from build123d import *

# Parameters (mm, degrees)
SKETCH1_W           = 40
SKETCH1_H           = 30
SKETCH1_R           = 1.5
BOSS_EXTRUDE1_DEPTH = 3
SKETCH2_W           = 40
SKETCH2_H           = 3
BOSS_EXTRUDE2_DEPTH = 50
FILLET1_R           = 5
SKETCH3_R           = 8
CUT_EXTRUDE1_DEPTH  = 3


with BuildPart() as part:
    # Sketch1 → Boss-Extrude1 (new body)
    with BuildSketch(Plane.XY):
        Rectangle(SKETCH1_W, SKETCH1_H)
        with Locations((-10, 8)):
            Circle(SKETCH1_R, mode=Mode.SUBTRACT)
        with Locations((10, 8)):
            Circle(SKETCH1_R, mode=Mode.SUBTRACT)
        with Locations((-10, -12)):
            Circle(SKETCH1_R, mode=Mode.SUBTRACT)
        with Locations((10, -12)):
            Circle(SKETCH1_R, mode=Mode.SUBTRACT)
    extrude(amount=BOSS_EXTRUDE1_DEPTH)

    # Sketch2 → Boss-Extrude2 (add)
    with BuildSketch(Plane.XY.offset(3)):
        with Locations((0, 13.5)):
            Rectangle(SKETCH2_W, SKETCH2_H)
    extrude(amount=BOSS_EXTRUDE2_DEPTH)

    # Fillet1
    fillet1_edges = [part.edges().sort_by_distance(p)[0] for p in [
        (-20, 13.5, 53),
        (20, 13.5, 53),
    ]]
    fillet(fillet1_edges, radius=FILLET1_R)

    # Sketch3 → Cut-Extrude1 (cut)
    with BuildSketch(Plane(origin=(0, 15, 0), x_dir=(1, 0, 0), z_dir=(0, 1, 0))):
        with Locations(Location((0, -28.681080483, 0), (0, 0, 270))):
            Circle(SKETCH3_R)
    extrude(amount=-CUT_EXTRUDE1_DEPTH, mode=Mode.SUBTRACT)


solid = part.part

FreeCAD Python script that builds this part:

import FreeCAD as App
import Part
import Sketcher
from FreeCAD import Vector
Q = App.Units.Quantity


def edges_at(feature, points):
    """Names of the edges that pass closest to the given points."""
    edges = feature.Shape.Edges
    near = lambda p: min(range(len(edges)), key=lambda i: edges[i].distToShape(Part.Vertex(*p))[0])
    return sorted({f"Edge{near(p) + 1}" for p in points})

doc = App.newDocument("Part")
body = doc.addObject("PartDesign::Body", "Body")

# Sketch on XY plane
sketch1 = body.newObject("Sketcher::SketchObject", "Sketch")
sketch1.AttachmentSupport = (doc.getObject("XY_Plane"), [""])
sketch1.MapMode = "FlatFace"
sketch1.addGeometry([
    Part.LineSegment(Vector(-20, 15, 0), Vector(-20, -15, 0)),  # 0
    Part.LineSegment(Vector(-20, -15, 0), Vector(20, -15, 0)),  # 1
    Part.LineSegment(Vector(20, -15, 0), Vector(20, 15, 0)),  # 2
    Part.LineSegment(Vector(20, 15, 0), Vector(-20, 15, 0)),  # 3
    Part.Circle(Vector(-10, -12, 0), Vector(0, 0, 1), 1.5),  # 4
    Part.Circle(Vector(10, -12, 0), Vector(0, 0, 1), 1.5),  # 5
    Part.Circle(Vector(-10, 8, 0), Vector(0, 0, 1), 1.5),  # 6
    Part.Circle(Vector(10, 8, 0), Vector(0, 0, 1), 1.5),  # 7
], False)
sketch1.addConstraint([
    Sketcher.Constraint("Coincident", 0, 2, 1, 1),
    Sketcher.Constraint("Coincident", 1, 2, 2, 1),
    Sketcher.Constraint("Coincident", 2, 2, 3, 1),
    Sketcher.Constraint("Coincident", 3, 2, 0, 1),
    Sketcher.Constraint("Vertical", 0),
    Sketcher.Constraint("Horizontal", 1),
    Sketcher.Constraint("Vertical", 2),
    Sketcher.Constraint("Horizontal", 3),
    Sketcher.Constraint("Equal", 4, 5),
    Sketcher.Constraint("Equal", 5, 6),
    Sketcher.Constraint("Equal", 6, 7),
    Sketcher.Constraint("Symmetric", 0, 2, 2, 2, -1, 1),
    Sketcher.Constraint("Symmetric", 4, 3, 5, 3, -2),
    Sketcher.Constraint("Symmetric", 6, 3, 7, 3, -2),
    Sketcher.Constraint("Vertical", 4, 3, 6, 3),
    Sketcher.Constraint("Diameter", 4, Q("3 mm")),
    Sketcher.Constraint("DistanceX", 1, 1, 1, 2, Q("40 mm")),
    Sketcher.Constraint("DistanceY", 0, 2, 0, 1, Q("30 mm")),
    Sketcher.Constraint("DistanceX", 4, 3, -1, 1, Q("10 mm")),
    Sketcher.Constraint("DistanceY", 4, 3, -1, 1, Q("12 mm")),
    Sketcher.Constraint("DistanceY", -1, 1, 6, 3, Q("8 mm")),
])
pad1 = body.newObject("PartDesign::Pad", "Pad")
pad1.Profile = sketch1
pad1.Length = 3

# Sketch on XY plane
sketch2 = body.newObject("Sketcher::SketchObject", "Sketch001")
sketch2.AttachmentSupport = (doc.getObject("XY_Plane"), [""])
sketch2.MapMode = "FlatFace"
sketch2.AttachmentOffset = App.Placement(Vector(0, 0, 3), App.Rotation())
sketch2.addGeometry([
    Part.LineSegment(Vector(-20, 15, 0), Vector(-20, 12, 0)),
    Part.LineSegment(Vector(-20, 12, 0), Vector(20, 12, 0)),
    Part.LineSegment(Vector(20, 12, 0), Vector(20, 15, 0)),
    Part.LineSegment(Vector(20, 15, 0), Vector(-20, 15, 0)),
], False)
sketch2.addConstraint([
    Sketcher.Constraint("Coincident", 0, 2, 1, 1),
    Sketcher.Constraint("Coincident", 1, 2, 2, 1),
    Sketcher.Constraint("Coincident", 2, 2, 3, 1),
    Sketcher.Constraint("Coincident", 3, 2, 0, 1),
    Sketcher.Constraint("Vertical", 0),
    Sketcher.Constraint("Horizontal", 1),
    Sketcher.Constraint("Vertical", 2),
    Sketcher.Constraint("Horizontal", 3),
    Sketcher.Constraint("DistanceX", 1, 1, 1, 2, Q("40 mm")),
    Sketcher.Constraint("DistanceY", 0, 2, 0, 1, Q("3 mm")),
    Sketcher.Constraint("DistanceX", 0, 2, -1, 1, Q("20 mm")),
    Sketcher.Constraint("DistanceY", -1, 1, 0, 2, Q("12 mm")),
])
pad2 = body.newObject("PartDesign::Pad", "Pad001")
pad2.Profile = sketch2
pad2.Length = 50
doc.recompute()

fillet = body.newObject("PartDesign::Fillet", "Fillet")
fillet.Base = (pad2, edges_at(pad2, [(-20, 13.5, 53), (20, 13.5, 53)]))
fillet.Radius = 5

# Sketch on XZ plane
sketch3 = body.newObject("Sketcher::SketchObject", "Sketch002")
sketch3.AttachmentSupport = (doc.getObject("XZ_Plane"), [""])
sketch3.MapMode = "FlatFace"
sketch3.AttachmentOffset = App.Placement(Vector(0, 0, -15), App.Rotation())
sketch3.addGeometry(Part.Circle(Vector(0, 29, 0), Vector(0, 0, 1), 8), False)
sketch3.addConstraint([
    Sketcher.Constraint("PointOnObject", 0, 3, -2),
    Sketcher.Constraint("Diameter", 0, Q("16 mm")),
    Sketcher.Constraint("DistanceY", -1, 1, 0, 3, Q("28.68108 mm")),
])
pocket1 = body.newObject("PartDesign::Pocket", "Pocket")
pocket1.Profile = sketch3
pocket1.Length = 3
pocket1.Reversed = True

doc.recompute()
